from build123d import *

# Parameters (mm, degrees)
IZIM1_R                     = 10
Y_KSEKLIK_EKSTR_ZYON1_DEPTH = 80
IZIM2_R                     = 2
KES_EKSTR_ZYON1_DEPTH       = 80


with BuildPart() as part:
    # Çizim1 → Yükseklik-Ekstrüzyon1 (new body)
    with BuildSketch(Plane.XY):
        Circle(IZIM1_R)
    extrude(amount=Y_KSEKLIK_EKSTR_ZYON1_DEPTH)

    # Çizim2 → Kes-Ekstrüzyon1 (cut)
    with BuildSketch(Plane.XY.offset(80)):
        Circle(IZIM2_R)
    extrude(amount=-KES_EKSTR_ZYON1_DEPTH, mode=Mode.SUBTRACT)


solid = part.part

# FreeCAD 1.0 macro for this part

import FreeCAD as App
import Part
import Sketcher

doc = App.newDocument("Part")
params = doc.addObject("Spreadsheet::Sheet", "Params")
for row, (alias, value) in enumerate([
    ("sketch1_diameter", "20 mm"),
    ("pad1_length", "80 mm"),
    ("sketch2_diameter", "4 mm"),
    ("pocket1_length", "80 mm"),
], start=1):
    params.set(f"A{row}", alias)
    params.set(f"B{row}", "=" + value)
    params.setAlias(f"B{row}", alias)

body = doc.addObject("PartDesign::Body", "Body")

sketch1 = body.newObject("Sketcher::SketchObject", "Sketch")
sketch1.AttachmentSupport = (doc.getObject("XY_Plane"), [""])
sketch1.MapMode = "FlatFace"
sketch1.addGeometry(Part.Circle(App.Vector(0, 0, 0), App.Vector(0, 0, 1), 10), False)
sketch1.addConstraint(Sketcher.Constraint("Coincident", 0, 3, -1, 1))
sketch1.addConstraint(Sketcher.Constraint("Diameter", 0, 20.0))
sketch1.setExpression("Constraints[1]", "Params.sketch1_diameter")
pad1 = body.newObject("PartDesign::Pad", "Pad")
pad1.Profile = sketch1
pad1.setExpression("Length", "Params.pad1_length")

sketch2 = body.newObject("Sketcher::SketchObject", "Sketch001")
sketch2.AttachmentSupport = (doc.getObject("XY_Plane"), [""])
sketch2.MapMode = "FlatFace"
sketch2.AttachmentOffset = App.Placement(App.Vector(0, 0, 80), App.Rotation())
sketch2.addGeometry(Part.Circle(App.Vector(0, 0, 0), App.Vector(0, 0, 1), 2), False)
sketch2.addConstraint(Sketcher.Constraint("Coincident", 0, 3, -1, 1))
sketch2.addConstraint(Sketcher.Constraint("Diameter", 0, 4.0))
sketch2.setExpression("Constraints[1]", "Params.sketch2_diameter")
pocket1 = body.newObject("PartDesign::Pocket", "Pocket")
pocket1.Profile = sketch2
pocket1.setExpression("Length", "Params.pocket1_length")

doc.recompute()
